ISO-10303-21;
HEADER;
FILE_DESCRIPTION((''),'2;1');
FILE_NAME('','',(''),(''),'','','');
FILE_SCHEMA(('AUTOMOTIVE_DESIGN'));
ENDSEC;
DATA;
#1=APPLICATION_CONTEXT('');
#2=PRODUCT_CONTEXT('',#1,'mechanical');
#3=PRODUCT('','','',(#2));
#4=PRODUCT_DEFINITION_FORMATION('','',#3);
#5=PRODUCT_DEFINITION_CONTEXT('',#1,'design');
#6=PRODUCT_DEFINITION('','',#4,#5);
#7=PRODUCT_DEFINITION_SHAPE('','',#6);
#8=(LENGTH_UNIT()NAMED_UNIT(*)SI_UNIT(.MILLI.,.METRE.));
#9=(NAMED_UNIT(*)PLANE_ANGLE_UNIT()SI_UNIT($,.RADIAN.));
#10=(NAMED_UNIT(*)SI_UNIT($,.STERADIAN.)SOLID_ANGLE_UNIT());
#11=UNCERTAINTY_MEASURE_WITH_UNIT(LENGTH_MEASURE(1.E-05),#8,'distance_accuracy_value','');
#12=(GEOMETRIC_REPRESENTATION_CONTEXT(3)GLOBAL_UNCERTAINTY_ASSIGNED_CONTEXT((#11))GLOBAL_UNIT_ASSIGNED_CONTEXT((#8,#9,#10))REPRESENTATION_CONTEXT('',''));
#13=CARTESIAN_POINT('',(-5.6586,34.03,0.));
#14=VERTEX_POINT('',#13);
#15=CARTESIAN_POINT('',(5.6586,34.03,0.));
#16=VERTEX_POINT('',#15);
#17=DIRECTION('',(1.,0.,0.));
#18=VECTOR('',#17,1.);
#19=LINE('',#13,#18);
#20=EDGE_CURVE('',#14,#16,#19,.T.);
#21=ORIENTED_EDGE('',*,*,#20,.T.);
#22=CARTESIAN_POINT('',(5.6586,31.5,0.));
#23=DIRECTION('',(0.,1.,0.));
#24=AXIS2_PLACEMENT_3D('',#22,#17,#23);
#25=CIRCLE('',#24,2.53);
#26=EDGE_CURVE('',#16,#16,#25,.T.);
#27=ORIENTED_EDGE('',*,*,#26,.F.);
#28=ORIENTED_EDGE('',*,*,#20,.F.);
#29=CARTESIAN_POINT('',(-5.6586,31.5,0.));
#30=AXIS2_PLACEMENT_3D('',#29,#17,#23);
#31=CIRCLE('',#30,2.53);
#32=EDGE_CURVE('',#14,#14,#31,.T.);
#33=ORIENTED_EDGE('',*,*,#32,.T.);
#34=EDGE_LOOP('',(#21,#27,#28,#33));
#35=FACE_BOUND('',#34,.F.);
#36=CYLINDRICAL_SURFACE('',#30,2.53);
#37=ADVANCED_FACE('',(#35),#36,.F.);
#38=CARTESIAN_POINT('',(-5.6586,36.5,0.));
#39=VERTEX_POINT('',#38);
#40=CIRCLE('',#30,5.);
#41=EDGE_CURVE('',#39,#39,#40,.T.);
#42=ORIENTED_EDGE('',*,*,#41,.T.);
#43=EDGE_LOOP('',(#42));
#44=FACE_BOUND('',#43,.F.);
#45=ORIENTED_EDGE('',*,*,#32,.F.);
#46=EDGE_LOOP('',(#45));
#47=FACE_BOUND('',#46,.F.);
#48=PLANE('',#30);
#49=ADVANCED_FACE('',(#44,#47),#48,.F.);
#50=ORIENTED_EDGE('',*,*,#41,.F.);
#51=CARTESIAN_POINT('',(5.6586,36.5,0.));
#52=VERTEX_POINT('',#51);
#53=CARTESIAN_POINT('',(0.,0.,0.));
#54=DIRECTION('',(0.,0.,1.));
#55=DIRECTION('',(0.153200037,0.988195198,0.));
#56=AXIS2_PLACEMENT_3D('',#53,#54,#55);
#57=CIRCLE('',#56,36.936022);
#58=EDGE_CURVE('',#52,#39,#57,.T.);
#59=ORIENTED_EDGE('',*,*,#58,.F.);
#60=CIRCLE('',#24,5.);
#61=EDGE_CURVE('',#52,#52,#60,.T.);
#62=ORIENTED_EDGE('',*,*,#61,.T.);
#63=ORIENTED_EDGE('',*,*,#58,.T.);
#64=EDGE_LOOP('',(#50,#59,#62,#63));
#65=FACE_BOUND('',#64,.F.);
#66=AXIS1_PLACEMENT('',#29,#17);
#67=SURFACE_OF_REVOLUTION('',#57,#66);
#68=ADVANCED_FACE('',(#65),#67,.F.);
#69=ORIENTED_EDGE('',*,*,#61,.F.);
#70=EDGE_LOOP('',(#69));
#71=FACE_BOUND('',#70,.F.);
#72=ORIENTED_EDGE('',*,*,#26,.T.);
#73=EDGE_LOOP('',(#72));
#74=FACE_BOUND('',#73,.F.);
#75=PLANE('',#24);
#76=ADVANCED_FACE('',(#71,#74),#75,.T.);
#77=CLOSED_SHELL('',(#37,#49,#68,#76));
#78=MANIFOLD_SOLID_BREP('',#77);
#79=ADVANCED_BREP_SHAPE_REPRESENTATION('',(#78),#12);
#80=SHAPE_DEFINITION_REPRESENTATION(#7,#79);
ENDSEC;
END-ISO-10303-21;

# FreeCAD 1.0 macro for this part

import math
import FreeCAD as App
import Part
import Sketcher
Q = App.Units.Quantity

doc = App.newDocument("Part")
body = doc.addObject("PartDesign::Body", "Body")

sketch1 = body.newObject("Sketcher::SketchObject", "Sketch")
sketch1.AttachmentSupport = (doc.getObject("XY_Plane"), [""])
sketch1.MapMode = "FlatFace"
sketch1.addGeometry([
    Part.ArcOfCircle(Part.Circle(App.Vector(0, 0, 0), App.Vector(0, 0, 1), 36.936022), math.radians(81.187581), math.radians(98.812419)),
    Part.LineSegment(App.Vector(-5.6586, 36.5, 0), App.Vector(-5.6586, 34.03, 0)),
    Part.LineSegment(App.Vector(-5.6586, 34.03, 0), App.Vector(5.6586, 34.03, 0)),
    Part.LineSegment(App.Vector(5.6586, 34.03, 0), App.Vector(5.6586, 36.5, 0)),
], False)
sketch1.addGeometry(Part.LineSegment(App.Vector(-5.6586, 31.5, 0), App.Vector(5.6586, 31.5, 0)), True)
sketch1.addConstraint([
    Sketcher.Constraint("Coincident", 0, 2, 1, 1),
    Sketcher.Constraint("Coincident", 1, 2, 2, 1),
    Sketcher.Constraint("Coincident", 2, 2, 3, 1),
    Sketcher.Constraint("Coincident", 3, 2, 0, 1),
    Sketcher.Constraint("Vertical", 1),
    Sketcher.Constraint("Horizontal", 2),
    Sketcher.Constraint("Vertical", 3),
    Sketcher.Constraint("Horizontal", 4),
    Sketcher.Constraint("Coincident", 0, 3, -1, 1),
    Sketcher.Constraint("Horizontal", 0, 2, 3, 2),
    Sketcher.Constraint("Vertical", 1, 2, 4, 1),
    Sketcher.Constraint("Vertical", 3, 2, 4, 2),
    Sketcher.Constraint("DistanceY", -1, 1, 4, 1, Q("31.5 mm")),
    Sketcher.Constraint("DistanceY", 4, 1, 1, 2, Q("2.53 mm")),
    Sketcher.Constraint("Radius", 0, Q("36.936 mm")),
    Sketcher.Constraint("DistanceY", 4, 1, 0, 2, Q("5 mm")),
])
revolution = body.newObject("PartDesign::Revolution", "Revolution")
revolution.Profile = sketch1
revolution.ReferenceAxis = (sketch1, ["Axis0"])
revolution.Angle = 360

doc.recompute()
